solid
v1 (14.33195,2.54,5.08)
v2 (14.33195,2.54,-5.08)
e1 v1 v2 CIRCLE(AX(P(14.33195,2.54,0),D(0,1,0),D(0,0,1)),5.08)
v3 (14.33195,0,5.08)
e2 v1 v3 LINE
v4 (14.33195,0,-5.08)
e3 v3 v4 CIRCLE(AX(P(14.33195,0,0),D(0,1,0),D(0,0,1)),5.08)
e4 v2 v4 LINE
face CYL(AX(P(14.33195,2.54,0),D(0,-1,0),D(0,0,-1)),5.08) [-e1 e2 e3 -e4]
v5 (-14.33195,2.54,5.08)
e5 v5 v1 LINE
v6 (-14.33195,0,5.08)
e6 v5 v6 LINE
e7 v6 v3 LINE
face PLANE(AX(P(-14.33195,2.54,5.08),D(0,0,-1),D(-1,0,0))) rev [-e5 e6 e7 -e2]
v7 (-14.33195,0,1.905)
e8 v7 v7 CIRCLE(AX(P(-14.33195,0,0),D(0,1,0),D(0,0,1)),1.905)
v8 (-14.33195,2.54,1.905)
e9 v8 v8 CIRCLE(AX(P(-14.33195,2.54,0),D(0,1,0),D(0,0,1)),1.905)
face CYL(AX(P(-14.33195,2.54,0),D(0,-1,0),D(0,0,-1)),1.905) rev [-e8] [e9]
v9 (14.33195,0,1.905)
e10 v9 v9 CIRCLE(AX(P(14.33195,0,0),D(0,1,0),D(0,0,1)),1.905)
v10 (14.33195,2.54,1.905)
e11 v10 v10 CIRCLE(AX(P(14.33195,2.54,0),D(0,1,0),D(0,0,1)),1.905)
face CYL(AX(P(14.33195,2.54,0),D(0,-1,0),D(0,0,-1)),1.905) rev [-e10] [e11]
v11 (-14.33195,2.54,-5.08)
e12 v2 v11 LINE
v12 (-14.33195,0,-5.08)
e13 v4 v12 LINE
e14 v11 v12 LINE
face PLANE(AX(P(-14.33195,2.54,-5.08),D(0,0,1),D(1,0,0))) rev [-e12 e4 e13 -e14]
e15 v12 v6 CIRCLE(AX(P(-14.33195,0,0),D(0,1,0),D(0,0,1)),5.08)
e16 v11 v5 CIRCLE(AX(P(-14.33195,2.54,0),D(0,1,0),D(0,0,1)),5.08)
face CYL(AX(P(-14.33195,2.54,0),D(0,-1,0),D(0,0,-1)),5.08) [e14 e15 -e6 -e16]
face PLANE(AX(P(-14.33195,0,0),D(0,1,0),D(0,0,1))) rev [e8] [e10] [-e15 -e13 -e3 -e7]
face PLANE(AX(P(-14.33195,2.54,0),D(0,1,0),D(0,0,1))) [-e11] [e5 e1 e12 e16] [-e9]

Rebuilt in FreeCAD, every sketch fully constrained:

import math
import FreeCAD as App
import Part
import Sketcher
from FreeCAD import Vector
Q = App.Units.Quantity

doc = App.newDocument("Part")
body = doc.addObject("PartDesign::Body", "Body")

# Sketch on XZ plane
sketch1 = body.newObject("Sketcher::SketchObject", "Sketch")
sketch1.AttachmentSupport = (doc.getObject("XZ_Plane"), [""])
sketch1.MapMode = "FlatFace"
sketch1.addGeometry(Part.LineSegment(Vector(14.3, -5.1, 0), Vector(-14.3, -5.1, 0)), False)
sketch1.addGeometry(Part.ArcOfCircle(Part.Circle(Vector(-14.3, 0, 0), Vector(0, 0, 1), 5.1), math.radians(90), math.radians(270)), False)
sketch1.addGeometry(Part.LineSegment(Vector(-14.3, 5.1, 0), Vector(14.3, 5.1, 0)), False)
sketch1.addGeometry(Part.ArcOfCircle(Part.Circle(Vector(14.3, 0, 0), Vector(0, 0, 1), 5.1), math.radians(-90), math.radians(90)), False)
sketch1.addGeometry(Part.Circle(Vector(14.3, 0, 0), Vector(0, 0, 1), 1.9), False)
sketch1.addGeometry(Part.Circle(Vector(-14.3, 0, 0), Vector(0, 0, 1), 1.9), False)
sketch1.addConstraint(Sketcher.Constraint("Tangent", 0, 2, 1, 2))
sketch1.addConstraint(Sketcher.Constraint("Tangent", 1, 1, 2, 1))
sketch1.addConstraint(Sketcher.Constraint("Tangent", 2, 2, 3, 2))
sketch1.addConstraint(Sketcher.Constraint("Tangent", 3, 1, 0, 1))
sketch1.addConstraint(Sketcher.Constraint("Horizontal", 0))
sketch1.addConstraint(Sketcher.Constraint("Horizontal", 2))
sketch1.addConstraint(Sketcher.Constraint("Coincident", 4, 3, 3, 3))
sketch1.addConstraint(Sketcher.Constraint("Coincident", 5, 3, 1, 3))
sketch1.addConstraint(Sketcher.Constraint("Equal", 4, 5))
sketch1.addConstraint(Sketcher.Constraint("Symmetric", 1, 3, 3, 3, -1, 1))
sketch1.addConstraint(Sketcher.Constraint("Radius", 1, Q("0.2 in")))
sketch1.addConstraint(Sketcher.Constraint("Diameter", 4, Q("0.15 in")))
sketch1.addConstraint(Sketcher.Constraint("DistanceX", 0, 2, 0, 1, Q("1.1285 in")))
pad1 = body.newObject("PartDesign::Pad", "Pad")
pad1.Profile = sketch1
pad1.Length = Q("0.1 in")
pad1.Reversed = True

doc.recompute()
